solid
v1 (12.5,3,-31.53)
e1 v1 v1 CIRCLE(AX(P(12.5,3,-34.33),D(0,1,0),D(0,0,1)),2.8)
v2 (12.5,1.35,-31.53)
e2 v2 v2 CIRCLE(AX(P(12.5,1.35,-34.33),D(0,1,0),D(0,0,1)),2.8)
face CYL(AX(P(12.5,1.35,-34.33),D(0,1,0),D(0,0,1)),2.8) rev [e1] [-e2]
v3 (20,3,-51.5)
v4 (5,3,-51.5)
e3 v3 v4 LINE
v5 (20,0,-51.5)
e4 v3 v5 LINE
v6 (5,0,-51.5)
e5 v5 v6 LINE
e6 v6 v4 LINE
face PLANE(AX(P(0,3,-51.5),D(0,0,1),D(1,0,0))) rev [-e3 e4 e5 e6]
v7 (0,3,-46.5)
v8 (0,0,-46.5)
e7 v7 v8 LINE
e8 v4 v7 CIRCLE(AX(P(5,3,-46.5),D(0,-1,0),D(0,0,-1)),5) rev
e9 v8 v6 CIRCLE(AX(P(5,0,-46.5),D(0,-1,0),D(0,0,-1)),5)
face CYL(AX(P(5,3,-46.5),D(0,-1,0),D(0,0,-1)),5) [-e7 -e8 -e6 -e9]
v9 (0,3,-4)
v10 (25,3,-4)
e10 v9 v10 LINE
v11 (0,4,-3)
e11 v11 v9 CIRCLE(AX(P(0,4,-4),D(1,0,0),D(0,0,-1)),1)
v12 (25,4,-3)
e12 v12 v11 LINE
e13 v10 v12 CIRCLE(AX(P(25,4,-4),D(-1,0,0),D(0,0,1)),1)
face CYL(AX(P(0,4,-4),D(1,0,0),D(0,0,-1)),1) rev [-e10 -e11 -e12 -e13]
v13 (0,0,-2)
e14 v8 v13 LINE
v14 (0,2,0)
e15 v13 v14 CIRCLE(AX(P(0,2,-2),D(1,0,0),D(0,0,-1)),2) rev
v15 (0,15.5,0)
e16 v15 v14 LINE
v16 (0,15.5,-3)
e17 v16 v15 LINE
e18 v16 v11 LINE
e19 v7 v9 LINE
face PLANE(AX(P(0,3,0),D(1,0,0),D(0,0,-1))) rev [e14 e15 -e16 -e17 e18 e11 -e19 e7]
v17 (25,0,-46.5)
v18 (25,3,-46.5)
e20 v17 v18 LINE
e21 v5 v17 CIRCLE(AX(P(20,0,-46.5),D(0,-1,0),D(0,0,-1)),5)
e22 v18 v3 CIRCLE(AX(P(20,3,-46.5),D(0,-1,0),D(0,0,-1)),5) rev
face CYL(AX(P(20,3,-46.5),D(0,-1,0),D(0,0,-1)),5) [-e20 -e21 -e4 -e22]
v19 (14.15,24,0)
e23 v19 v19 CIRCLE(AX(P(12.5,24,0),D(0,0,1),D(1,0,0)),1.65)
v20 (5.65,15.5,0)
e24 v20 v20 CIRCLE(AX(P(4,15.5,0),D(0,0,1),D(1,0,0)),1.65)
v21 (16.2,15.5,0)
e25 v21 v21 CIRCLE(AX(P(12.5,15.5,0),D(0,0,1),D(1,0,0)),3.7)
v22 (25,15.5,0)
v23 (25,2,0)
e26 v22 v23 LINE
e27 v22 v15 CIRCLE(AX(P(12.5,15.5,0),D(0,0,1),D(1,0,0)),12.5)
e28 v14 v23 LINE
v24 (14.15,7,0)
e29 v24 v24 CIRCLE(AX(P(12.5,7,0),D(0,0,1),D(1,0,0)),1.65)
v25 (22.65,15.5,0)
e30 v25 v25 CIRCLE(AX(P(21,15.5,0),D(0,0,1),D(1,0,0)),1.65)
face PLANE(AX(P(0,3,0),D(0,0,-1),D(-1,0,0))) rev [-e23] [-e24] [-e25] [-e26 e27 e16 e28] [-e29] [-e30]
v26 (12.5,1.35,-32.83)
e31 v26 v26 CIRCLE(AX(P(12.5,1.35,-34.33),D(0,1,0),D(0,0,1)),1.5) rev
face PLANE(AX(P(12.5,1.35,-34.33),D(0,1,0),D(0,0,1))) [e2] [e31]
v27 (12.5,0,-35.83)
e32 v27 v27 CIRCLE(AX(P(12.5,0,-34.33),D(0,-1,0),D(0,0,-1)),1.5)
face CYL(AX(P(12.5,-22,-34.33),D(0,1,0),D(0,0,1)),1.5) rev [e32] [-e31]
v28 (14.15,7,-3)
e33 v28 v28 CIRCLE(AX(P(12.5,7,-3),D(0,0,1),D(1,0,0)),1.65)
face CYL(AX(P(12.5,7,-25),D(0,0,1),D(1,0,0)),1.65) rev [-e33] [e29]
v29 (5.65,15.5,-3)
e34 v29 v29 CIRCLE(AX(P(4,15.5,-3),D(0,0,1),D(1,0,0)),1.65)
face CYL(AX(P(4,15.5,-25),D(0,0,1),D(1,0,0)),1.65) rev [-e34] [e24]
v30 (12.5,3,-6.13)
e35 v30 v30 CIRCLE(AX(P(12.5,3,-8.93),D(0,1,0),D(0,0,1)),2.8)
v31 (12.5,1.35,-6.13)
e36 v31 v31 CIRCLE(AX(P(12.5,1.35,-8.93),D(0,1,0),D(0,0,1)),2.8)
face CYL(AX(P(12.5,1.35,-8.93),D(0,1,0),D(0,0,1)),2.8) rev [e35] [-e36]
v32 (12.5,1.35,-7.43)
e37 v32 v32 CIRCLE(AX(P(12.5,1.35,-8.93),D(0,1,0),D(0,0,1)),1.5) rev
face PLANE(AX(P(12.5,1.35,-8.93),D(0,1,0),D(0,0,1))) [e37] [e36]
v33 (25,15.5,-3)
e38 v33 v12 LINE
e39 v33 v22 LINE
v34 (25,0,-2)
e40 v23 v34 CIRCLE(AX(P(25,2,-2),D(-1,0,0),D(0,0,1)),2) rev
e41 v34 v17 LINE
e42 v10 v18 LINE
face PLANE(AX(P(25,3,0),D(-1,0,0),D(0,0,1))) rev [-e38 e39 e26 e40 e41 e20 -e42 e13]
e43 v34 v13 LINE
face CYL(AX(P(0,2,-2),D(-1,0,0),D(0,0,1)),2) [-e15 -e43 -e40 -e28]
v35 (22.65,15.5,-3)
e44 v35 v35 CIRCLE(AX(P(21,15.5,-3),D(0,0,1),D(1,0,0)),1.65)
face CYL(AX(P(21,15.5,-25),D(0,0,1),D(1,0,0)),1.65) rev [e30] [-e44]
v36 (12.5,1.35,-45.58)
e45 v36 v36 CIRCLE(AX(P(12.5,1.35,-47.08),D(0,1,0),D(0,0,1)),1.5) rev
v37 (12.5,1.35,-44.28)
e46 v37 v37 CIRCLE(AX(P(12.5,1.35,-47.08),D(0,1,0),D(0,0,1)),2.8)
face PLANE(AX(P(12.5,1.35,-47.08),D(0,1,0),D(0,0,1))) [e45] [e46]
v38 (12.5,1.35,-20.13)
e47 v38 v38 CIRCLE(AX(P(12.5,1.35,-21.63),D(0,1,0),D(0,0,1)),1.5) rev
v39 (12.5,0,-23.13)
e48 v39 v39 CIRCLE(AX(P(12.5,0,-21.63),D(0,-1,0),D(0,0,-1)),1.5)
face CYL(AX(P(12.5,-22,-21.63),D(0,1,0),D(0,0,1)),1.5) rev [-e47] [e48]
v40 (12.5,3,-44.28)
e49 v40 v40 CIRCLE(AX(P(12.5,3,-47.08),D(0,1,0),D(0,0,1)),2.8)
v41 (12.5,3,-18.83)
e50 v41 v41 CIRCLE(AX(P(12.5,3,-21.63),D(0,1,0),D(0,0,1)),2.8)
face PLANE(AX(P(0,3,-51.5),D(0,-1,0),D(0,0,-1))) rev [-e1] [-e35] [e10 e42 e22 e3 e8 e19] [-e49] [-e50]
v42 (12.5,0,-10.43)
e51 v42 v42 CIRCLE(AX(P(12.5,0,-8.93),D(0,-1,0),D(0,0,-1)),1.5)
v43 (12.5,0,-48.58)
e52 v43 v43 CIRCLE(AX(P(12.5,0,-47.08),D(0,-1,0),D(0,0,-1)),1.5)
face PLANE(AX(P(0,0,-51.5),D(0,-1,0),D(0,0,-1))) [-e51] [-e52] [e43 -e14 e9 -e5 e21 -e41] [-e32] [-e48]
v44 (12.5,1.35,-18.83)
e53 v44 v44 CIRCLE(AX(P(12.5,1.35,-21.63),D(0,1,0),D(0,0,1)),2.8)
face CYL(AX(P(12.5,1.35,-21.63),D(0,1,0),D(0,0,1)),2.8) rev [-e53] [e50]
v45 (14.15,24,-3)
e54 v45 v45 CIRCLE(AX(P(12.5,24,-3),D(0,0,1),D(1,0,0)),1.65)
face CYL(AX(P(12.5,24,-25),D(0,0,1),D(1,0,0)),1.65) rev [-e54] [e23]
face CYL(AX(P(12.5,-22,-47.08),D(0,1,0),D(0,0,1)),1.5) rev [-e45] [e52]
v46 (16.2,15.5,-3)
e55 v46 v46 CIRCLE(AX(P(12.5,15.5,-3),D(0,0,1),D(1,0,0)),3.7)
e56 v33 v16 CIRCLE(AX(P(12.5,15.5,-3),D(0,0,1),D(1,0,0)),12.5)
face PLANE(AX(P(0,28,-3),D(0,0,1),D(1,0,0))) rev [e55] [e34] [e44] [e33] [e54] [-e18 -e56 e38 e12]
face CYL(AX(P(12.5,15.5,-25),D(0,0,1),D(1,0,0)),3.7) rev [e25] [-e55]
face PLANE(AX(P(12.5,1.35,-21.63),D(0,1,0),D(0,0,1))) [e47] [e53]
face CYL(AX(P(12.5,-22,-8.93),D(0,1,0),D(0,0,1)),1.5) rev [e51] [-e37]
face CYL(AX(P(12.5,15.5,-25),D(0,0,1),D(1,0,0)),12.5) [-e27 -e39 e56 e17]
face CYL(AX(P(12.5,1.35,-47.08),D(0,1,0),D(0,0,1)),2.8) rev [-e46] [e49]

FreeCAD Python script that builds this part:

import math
import FreeCAD as App
import Part
import Sketcher
from FreeCAD import Vector


def edges_at(feature, points):
    """Names of the edges that pass closest to the given points."""
    edges = feature.Shape.Edges
    near = lambda p: min(range(len(edges)), key=lambda i: edges[i].distToShape(Part.Vertex(*p))[0])
    return sorted({f"Edge{near(p) + 1}" for p in points})


def add_polygon(sketch, points):
    """Adds a closed chain of lines whose ends are joined by coincident constraints."""
    first, n = sketch.GeometryCount, len(points)
    for a, b in zip(points, points[1:] + points[:1]):
        sketch.addGeometry(Part.LineSegment(App.Vector(*a, 0), App.Vector(*b, 0)), False)
    for i in range(n):
        sketch.addConstraint(Sketcher.Constraint("Coincident", first + i, 2, first + (i + 1) % n, 1))

doc = App.newDocument("Part")
body = doc.addObject("PartDesign::Body", "Body")

sketch1 = body.newObject("Sketcher::SketchObject", "Sketch")
sketch1.AttachmentSupport = (doc.getObject("XZ_Plane"), [""])
sketch1.MapMode = "FlatFace"
add_polygon(sketch1, [(0, -52), (0, 0), (25, 0), (25, -52)])
sketch1.addConstraint([
    Sketcher.Constraint("Vertical", 0),
    Sketcher.Constraint("Horizontal", 1),
    Sketcher.Constraint("Vertical", 2),
    Sketcher.Constraint("Horizontal", 3),
    Sketcher.Constraint("Coincident", 0, 2, -1, 1),
    Sketcher.Constraint("DistanceX", 1, 1, 1, 2, 25.0),
    Sketcher.Constraint("DistanceY", 0, 1, 0, 2, 51.5),
])
pad1 = body.newObject("PartDesign::Pad", "Pad")
pad1.Profile = sketch1
pad1.Length = 3
pad1.Reversed = True

sketch2 = body.newObject("Sketcher::SketchObject", "Sketch001")
sketch2.AttachmentSupport = (doc.getObject("XZ_Plane"), [""])
sketch2.MapMode = "FlatFace"
sketch2.AttachmentOffset = App.Placement(Vector(0, 0, -3), App.Rotation())
add_polygon(sketch2, [(0, -3), (0, 0), (25, 0), (25, -3)])
sketch2.addConstraint([
    Sketcher.Constraint("Vertical", 0),
    Sketcher.Constraint("Horizontal", 1),
    Sketcher.Constraint("Vertical", 2),
    Sketcher.Constraint("Horizontal", 3),
    Sketcher.Constraint("Coincident", 0, 2, -1, 1),
    Sketcher.Constraint("DistanceX", 1, 1, 1, 2, 25.0),
    Sketcher.Constraint("DistanceY", 0, 1, 0, 2, 3.0),
])
pad2 = body.newObject("PartDesign::Pad", "Pad001")
pad2.Profile = sketch2
pad2.Length = 25
pad2.Reversed = True

sketch3 = body.newObject("Sketcher::SketchObject", "Sketch002")
sketch3.AttachmentSupport = (doc.getObject("XY_Plane"), [""])
sketch3.MapMode = "FlatFace"
sketch3.addGeometry([
    Part.Circle(Vector(4, 15.5, 0), Vector(0, 0, 1), 1.6),
    Part.ArcOfCircle(Part.Circle(Vector(12.5, 15.5, 0), Vector(0, 0, 1), 12.5), math.radians(90), math.radians(180)),
    Part.LineSegment(Vector(12.5, 28, 0), Vector(0, 28, 0)),
    Part.LineSegment(Vector(0, 28, 0), Vector(0, 15.5, 0)),
    Part.Circle(Vector(12.5, 24, 0), Vector(0, 0, 1), 1.6),
    Part.Circle(Vector(12.5, 15.5, 0), Vector(0, 0, 1), 3.7),
    Part.Circle(Vector(21, 15.5, 0), Vector(0, 0, 1), 1.6),
    Part.Circle(Vector(12.5, 7, 0), Vector(0, 0, 1), 1.6),
    Part.ArcOfCircle(Part.Circle(Vector(12.5, 15.5, 0), Vector(0, 0, 1), 12.5), math.radians(0), math.radians(90)),
    Part.LineSegment(Vector(25, 15.5, 0), Vector(25, 28, 0)),
    Part.LineSegment(Vector(25, 28, 0), Vector(12.5, 28, 0)),
], False)
sketch3.addConstraint([
    Sketcher.Constraint("Tangent", 1, 1, 2, 1),
    Sketcher.Constraint("Coincident", 2, 2, 3, 1),
    Sketcher.Constraint("Tangent", 3, 2, 1, 2),
    Sketcher.Constraint("Tangent", 8, 1, 9, 1),
    Sketcher.Constraint("Coincident", 9, 2, 10, 1),
    Sketcher.Constraint("Tangent", 10, 2, 8, 2),
    Sketcher.Constraint("Horizontal", 2),
    Sketcher.Constraint("Vertical", 3),
    Sketcher.Constraint("Vertical", 9),
    Sketcher.Constraint("Horizontal", 10),
    Sketcher.Constraint("Coincident", 5, 3, 1, 3),
    Sketcher.Constraint("Coincident", 8, 3, 1, 3),
    Sketcher.Constraint("Equal", 0, 4),
    Sketcher.Constraint("Equal", 4, 6),
    Sketcher.Constraint("Equal", 6, 7),
    Sketcher.Constraint("Equal", 1, 8),
    Sketcher.Constraint("PointOnObject", 2, 2, -2),
    Sketcher.Constraint("Horizontal", 0, 3, 1, 3),
    Sketcher.Constraint("Horizontal", 5, 3, 6, 3),
    Sketcher.Constraint("Vertical", 1, 3, 4, 3),
    Sketcher.Constraint("Vertical", 5, 3, 7, 3),
    Sketcher.Constraint("Diameter", 0, 3.3),
    Sketcher.Constraint("Diameter", 5, 7.4),
    Sketcher.Constraint("Radius", 1, 12.5),
    Sketcher.Constraint("DistanceX", -1, 1, 0, 3, 4.0),
    Sketcher.Constraint("DistanceY", -1, 1, 4, 3, 24.0),
    Sketcher.Constraint("DistanceX", -1, 1, 6, 3, 21.0),
    Sketcher.Constraint("DistanceY", -1, 1, 7, 3, 7.0),
    Sketcher.Constraint("DistanceY", -1, 1, 1, 1, 28.0),
])
pocket1 = body.newObject("PartDesign::Pocket", "Pocket")
pocket1.Profile = sketch3
pocket1.Length = 25

sketch4 = body.newObject("Sketcher::SketchObject", "Sketch003")
sketch4.AttachmentSupport = (doc.getObject("XZ_Plane"), [""])
sketch4.MapMode = "FlatFace"
sketch4.AttachmentOffset = App.Placement(Vector(0, 0, -3), App.Rotation())
sketch4.addGeometry([
    Part.Circle(Vector(12.5, -34.3, 0), Vector(0, 0, 1), 1.5),
    Part.Circle(Vector(12.5, -21.6, 0), Vector(0, 0, 1), 1.5),
    Part.Circle(Vector(12.5, -8.9, 0), Vector(0, 0, 1), 1.5),
    Part.Circle(Vector(12.5, -47.1, 0), Vector(0, 0, 1), 1.5),
], False)
sketch4.addConstraint([
    Sketcher.Constraint("Equal", 0, 1),
    Sketcher.Constraint("Equal", 1, 2),
    Sketcher.Constraint("Equal", 2, 3),
    Sketcher.Constraint("Vertical", 0, 3, 1, 3),
    Sketcher.Constraint("Vertical", 1, 3, 2, 3),
    Sketcher.Constraint("Vertical", 2, 3, 3, 3),
    Sketcher.Constraint("Diameter", 0, 3.0),
    Sketcher.Constraint("DistanceX", -1, 1, 0, 3, 12.5),
    Sketcher.Constraint("DistanceY", 0, 3, 1, 3, 12.7),
    Sketcher.Constraint("DistanceY", 1, 3, 2, 3, 12.7),
    Sketcher.Constraint("DistanceY", 0, 3, -1, 1, 34.33),
    Sketcher.Constraint("DistanceY", 3, 3, -1, 1, 47.08),
])
pocket2 = body.newObject("PartDesign::Pocket", "Pocket001")
pocket2.Profile = sketch4
pocket2.Length = 25
pocket2.Reversed = True
doc.recompute()

fillet = body.newObject("PartDesign::Fillet", "Fillet")
fillet.Base = (pocket2, edges_at(pocket2, [(0, 1.5, -51.5), (25, 1.5, -51.5)]))
fillet.Radius = 5
doc.recompute()

fillet2 = body.newObject("PartDesign::Fillet", "Fillet001")
fillet2.Base = (fillet, edges_at(fillet, [(12.5, 0, 0)]))
fillet2.Radius = 2
doc.recompute()

fillet3 = body.newObject("PartDesign::Fillet", "Fillet002")
fillet3.Base = (fillet2, edges_at(fillet2, [(12.5, 3, -3)]))
fillet3.Radius = 1

sketch5 = body.newObject("Sketcher::SketchObject", "Sketch004")
sketch5.AttachmentSupport = (doc.getObject("XZ_Plane"), [""])
sketch5.MapMode = "FlatFace"
sketch5.AttachmentOffset = App.Placement(Vector(0, 0, -3), App.Rotation())
sketch5.addGeometry([
    Part.Circle(Vector(12.5, -47.1, 0), Vector(0, 0, 1), 2.8),
    Part.Circle(Vector(12.5, -34.3, 0), Vector(0, 0, 1), 2.8),
    Part.Circle(Vector(12.5, -21.6, 0), Vector(0, 0, 1), 2.8),
    Part.Circle(Vector(12.5, -8.9, 0), Vector(0, 0, 1), 2.8),
], False)
sketch5.addConstraint([
    Sketcher.Constraint("Equal", 0, 1),
    Sketcher.Constraint("Equal", 1, 2),
    Sketcher.Constraint("Equal", 2, 3),
    Sketcher.Constraint("Vertical", 0, 3, 1, 3),
    Sketcher.Constraint("Vertical", 1, 3, 2, 3),
    Sketcher.Constraint("Vertical", 2, 3, 3, 3),
    Sketcher.Constraint("Diameter", 0, 5.6),
    Sketcher.Constraint("DistanceX", -1, 1, 0, 3, 12.5),
    Sketcher.Constraint("DistanceY", 1, 3, 2, 3, 12.7),
    Sketcher.Constraint("DistanceY", 2, 3, 3, 3, 12.7),
    Sketcher.Constraint("DistanceY", 0, 3, -1, 1, 47.08),
    Sketcher.Constraint("DistanceY", 1, 3, -1, 1, 34.33),
])
pocket3 = body.newObject("PartDesign::Pocket", "Pocket002")
pocket3.Profile = sketch5
pocket3.Length = 1.65
pocket3.Reversed = True

doc.recompute()
